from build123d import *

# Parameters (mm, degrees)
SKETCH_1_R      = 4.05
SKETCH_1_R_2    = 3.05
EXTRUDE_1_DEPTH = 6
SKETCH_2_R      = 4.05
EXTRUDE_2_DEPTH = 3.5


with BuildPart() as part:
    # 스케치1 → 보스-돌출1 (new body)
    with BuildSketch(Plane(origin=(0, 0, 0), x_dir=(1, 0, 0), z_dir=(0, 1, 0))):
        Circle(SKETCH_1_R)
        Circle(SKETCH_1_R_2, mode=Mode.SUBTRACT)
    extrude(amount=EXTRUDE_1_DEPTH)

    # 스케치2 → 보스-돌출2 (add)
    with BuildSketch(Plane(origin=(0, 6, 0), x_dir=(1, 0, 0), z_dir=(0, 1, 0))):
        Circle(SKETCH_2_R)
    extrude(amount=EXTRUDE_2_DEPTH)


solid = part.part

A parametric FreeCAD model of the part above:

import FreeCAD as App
import Part
import Sketcher
from FreeCAD import Vector
Q = App.Units.Quantity

doc = App.newDocument("Part")
params = doc.addObject("Spreadsheet::Sheet", "Params")
for row, (alias, value) in enumerate([
    ("sketch1_diameter", "8.1 mm"),
    ("sketch1_diameter2", "6.1 mm"),
    ("pad1_length", "6 mm"),
    ("sketch2_diameter", "8.1 mm"),
    ("pad2_length", "3.5 mm"),
], start=1):
    params.set(f"A{row}", alias)
    params.set(f"B{row}", "=" + value)
    params.setAlias(f"B{row}", alias)

body = doc.addObject("PartDesign::Body", "Body")

sketch1 = body.newObject("Sketcher::SketchObject", "Sketch")
sketch1.AttachmentSupport = (doc.getObject("XZ_Plane"), [""])
sketch1.MapMode = "FlatFace"
sketch1.addGeometry([
    Part.Circle(Vector(0, 0, 0), Vector(0, 0, 1), 4),
    Part.Circle(Vector(0, 0, 0), Vector(0, 0, 1), 3),
], False)
sketch1.addConstraint([
    Sketcher.Constraint("Coincident", 0, 3, -1, 1),
    Sketcher.Constraint("Coincident", 1, 3, -1, 1),
    Sketcher.Constraint("Diameter", 0, Q("8.1 mm")),
    Sketcher.Constraint("Diameter", 1, Q("6.1 mm")),
])
sketch1.setExpression("Constraints[2]", "Params.sketch1_diameter")
sketch1.setExpression("Constraints[3]", "Params.sketch1_diameter2")
pad1 = body.newObject("PartDesign::Pad", "Pad")
pad1.Profile = sketch1
pad1.setExpression("Length", "Params.pad1_length")
pad1.Reversed = True

sketch2 = body.newObject("Sketcher::SketchObject", "Sketch001")
sketch2.AttachmentSupport = (doc.getObject("XZ_Plane"), [""])
sketch2.MapMode = "FlatFace"
sketch2.AttachmentOffset = App.Placement(Vector(0, 0, -6), App.Rotation())
sketch2.addGeometry(Part.Circle(Vector(0, 0, 0), Vector(0, 0, 1), 4), False)
sketch2.addConstraint([
    Sketcher.Constraint("Coincident", 0, 3, -1, 1),
    Sketcher.Constraint("Diameter", 0, Q("8.1 mm")),
])
sketch2.setExpression("Constraints[1]", "Params.sketch2_diameter")
pad2 = body.newObject("PartDesign::Pad", "Pad001")
pad2.Profile = sketch2
pad2.setExpression("Length", "Params.pad2_length")
pad2.Reversed = True

doc.recompute()
